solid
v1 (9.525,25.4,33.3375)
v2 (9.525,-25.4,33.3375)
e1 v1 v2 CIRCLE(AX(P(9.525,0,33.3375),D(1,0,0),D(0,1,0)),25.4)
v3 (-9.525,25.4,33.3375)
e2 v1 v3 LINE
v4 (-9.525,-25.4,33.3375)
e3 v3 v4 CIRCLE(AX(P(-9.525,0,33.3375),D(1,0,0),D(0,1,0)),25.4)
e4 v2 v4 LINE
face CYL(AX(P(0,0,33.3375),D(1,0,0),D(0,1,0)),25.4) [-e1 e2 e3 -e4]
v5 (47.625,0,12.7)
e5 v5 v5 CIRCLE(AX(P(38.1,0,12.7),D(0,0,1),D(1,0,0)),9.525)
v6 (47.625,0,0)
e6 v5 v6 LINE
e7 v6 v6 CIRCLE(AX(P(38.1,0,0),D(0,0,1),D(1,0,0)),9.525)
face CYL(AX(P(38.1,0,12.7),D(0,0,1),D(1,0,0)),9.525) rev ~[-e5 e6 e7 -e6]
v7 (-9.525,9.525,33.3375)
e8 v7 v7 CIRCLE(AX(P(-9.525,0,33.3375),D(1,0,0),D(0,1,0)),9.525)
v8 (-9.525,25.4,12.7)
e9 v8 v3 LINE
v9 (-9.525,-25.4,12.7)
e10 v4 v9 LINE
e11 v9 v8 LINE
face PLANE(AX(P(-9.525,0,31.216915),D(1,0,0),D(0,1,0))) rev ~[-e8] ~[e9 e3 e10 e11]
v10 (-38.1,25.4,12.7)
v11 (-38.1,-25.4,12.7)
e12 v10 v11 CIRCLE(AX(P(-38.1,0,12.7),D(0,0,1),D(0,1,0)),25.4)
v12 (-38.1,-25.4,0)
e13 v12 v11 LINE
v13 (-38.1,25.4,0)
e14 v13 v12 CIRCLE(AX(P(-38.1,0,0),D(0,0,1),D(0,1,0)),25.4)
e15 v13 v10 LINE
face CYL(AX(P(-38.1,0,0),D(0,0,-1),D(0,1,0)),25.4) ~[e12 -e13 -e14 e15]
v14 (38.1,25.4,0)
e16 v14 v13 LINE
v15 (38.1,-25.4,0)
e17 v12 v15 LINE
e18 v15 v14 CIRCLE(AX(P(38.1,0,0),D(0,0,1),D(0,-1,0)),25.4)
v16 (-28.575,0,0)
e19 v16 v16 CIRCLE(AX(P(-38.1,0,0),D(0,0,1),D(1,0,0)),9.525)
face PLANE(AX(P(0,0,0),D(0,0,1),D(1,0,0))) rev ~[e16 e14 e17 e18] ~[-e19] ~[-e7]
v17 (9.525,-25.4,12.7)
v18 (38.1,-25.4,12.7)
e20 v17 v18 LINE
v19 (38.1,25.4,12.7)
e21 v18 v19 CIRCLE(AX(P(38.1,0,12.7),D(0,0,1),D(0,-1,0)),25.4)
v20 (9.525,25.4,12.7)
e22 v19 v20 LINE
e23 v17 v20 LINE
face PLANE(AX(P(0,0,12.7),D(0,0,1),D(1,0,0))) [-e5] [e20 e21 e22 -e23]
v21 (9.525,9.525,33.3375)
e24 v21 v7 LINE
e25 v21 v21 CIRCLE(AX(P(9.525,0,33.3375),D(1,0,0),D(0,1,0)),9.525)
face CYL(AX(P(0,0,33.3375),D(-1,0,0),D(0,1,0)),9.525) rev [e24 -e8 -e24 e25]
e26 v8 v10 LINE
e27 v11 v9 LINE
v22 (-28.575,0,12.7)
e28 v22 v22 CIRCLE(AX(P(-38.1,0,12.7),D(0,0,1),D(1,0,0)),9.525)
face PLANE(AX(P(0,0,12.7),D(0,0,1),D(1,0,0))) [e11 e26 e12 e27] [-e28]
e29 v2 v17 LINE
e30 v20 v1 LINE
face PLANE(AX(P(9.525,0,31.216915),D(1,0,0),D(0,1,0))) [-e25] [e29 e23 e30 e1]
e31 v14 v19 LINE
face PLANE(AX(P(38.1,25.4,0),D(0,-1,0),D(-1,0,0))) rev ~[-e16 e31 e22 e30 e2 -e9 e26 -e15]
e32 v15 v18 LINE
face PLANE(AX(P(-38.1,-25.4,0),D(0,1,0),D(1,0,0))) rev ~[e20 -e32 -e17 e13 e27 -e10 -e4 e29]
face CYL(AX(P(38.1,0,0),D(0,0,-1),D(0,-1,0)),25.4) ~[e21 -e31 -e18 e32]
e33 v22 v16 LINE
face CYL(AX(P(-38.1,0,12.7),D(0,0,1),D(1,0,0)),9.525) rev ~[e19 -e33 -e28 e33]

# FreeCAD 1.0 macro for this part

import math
import FreeCAD as App
import Part
import Sketcher
from FreeCAD import Vector
Q = App.Units.Quantity

doc = App.newDocument("Part")
body = doc.addObject("PartDesign::Body", "Body")

# Sketch on XY plane
sketch1 = body.newObject("Sketcher::SketchObject", "Sketch")
sketch1.AttachmentSupport = (doc.getObject("XY_Plane"), [""])
sketch1.MapMode = "FlatFace"
sketch1.addGeometry([
    Part.ArcOfCircle(Part.Circle(Vector(-38, 0, 0), Vector(0, 0, 1), 25), math.radians(90), math.radians(270)),
    Part.LineSegment(Vector(-38, -25, 0), Vector(38, -25, 0)),
    Part.ArcOfCircle(Part.Circle(Vector(38, 0, 0), Vector(0, 0, 1), 25), math.radians(-90), math.radians(90)),
    Part.LineSegment(Vector(38, 25, 0), Vector(-38, 25, 0)),
], False)
sketch1.addConstraint([
    Sketcher.Constraint("Tangent", 0, 2, 1, 1),
    Sketcher.Constraint("Tangent", 1, 2, 2, 1),
    Sketcher.Constraint("Tangent", 2, 2, 3, 1),
    Sketcher.Constraint("Tangent", 3, 2, 0, 1),
    Sketcher.Constraint("Horizontal", 1),
    Sketcher.Constraint("Horizontal", 3),
    Sketcher.Constraint("Symmetric", 0, 3, 2, 3, -1, 1),
    Sketcher.Constraint("Radius", 0, Q("1 in")),
    Sketcher.Constraint("DistanceX", 1, 1, 1, 2, Q("3 in")),
])
pad1 = body.newObject("PartDesign::Pad", "Pad")
pad1.Profile = sketch1
pad1.Length = Q("0.5 in")

# Sketch on XY plane
sketch2 = body.newObject("Sketcher::SketchObject", "Sketch001")
sketch2.AttachmentSupport = (doc.getObject("XY_Plane"), [""])
sketch2.MapMode = "FlatFace"
sketch2.AttachmentOffset = App.Placement(Vector(0, 0, 0.5 * 25.4), App.Rotation())
sketch2.addGeometry([
    Part.Circle(Vector(-38, 0, 0), Vector(0, 0, 1), 10),
    Part.Circle(Vector(38, 0, 0), Vector(0, 0, 1), 10),
], False)
sketch2.addConstraint([
    Sketcher.Constraint("Equal", 0, 1),
    Sketcher.Constraint("Symmetric", 0, 3, 1, 3, -1, 1),
    Sketcher.Constraint("PointOnObject", 0, 3, -1),
    Sketcher.Constraint("Diameter", 0, Q("0.75 in")),
    Sketcher.Constraint("DistanceX", 0, 3, 1, 3, Q("3 in")),
])
pocket1 = body.newObject("PartDesign::Pocket", "Pocket")
pocket1.Profile = sketch2
pocket1.Length = Q("0.5 in")

# Sketch on YZ plane
sketch3 = body.newObject("Sketcher::SketchObject", "Sketch002")
sketch3.AttachmentSupport = (doc.getObject("YZ_Plane"), [""])
sketch3.MapMode = "FlatFace"
sketch3.addGeometry([
    Part.LineSegment(Vector(-25, 33, 0), Vector(-25, 13, 0)),  # 0
    Part.LineSegment(Vector(-25, 13, 0), Vector(25, 13, 0)),  # 1
    Part.LineSegment(Vector(25, 13, 0), Vector(25, 33, 0)),  # 2
    Part.ArcOfCircle(Part.Circle(Vector(0, 33, 0), Vector(0, 0, 1), 25), math.radians(0), math.radians(180)),  # 3
    Part.Circle(Vector(0, 33, 0), Vector(0, 0, 1), 10),  # 4
], False)
sketch3.addConstraint([
    Sketcher.Constraint("Coincident", 0, 2, 1, 1),
    Sketcher.Constraint("Coincident", 1, 2, 2, 1),
    Sketcher.Constraint("Tangent", 2, 2, 3, 1),
    Sketcher.Constraint("Tangent", 3, 2, 0, 1),
    Sketcher.Constraint("Vertical", 0),
    Sketcher.Constraint("Horizontal", 1),
    Sketcher.Constraint("Vertical", 2),
    Sketcher.Constraint("Coincident", 4, 3, 3, 3),
    Sketcher.Constraint("PointOnObject", 3, 3, -2),
    Sketcher.Constraint("Radius", 3, Q("1 in")),
    Sketcher.Constraint("Diameter", 4, Q("0.75 in")),
    Sketcher.Constraint("DistanceY", -1, 1, 0, 2, Q("0.5 in")),
    Sketcher.Constraint("DistanceY", 0, 2, 0, 1, Q("0.8125 in")),
])
pad2 = body.newObject("PartDesign::Pad", "Pad001")
pad2.Profile = sketch3
pad2.Length = Q("0.75 in")
pad2.Midplane = True

doc.recompute()
